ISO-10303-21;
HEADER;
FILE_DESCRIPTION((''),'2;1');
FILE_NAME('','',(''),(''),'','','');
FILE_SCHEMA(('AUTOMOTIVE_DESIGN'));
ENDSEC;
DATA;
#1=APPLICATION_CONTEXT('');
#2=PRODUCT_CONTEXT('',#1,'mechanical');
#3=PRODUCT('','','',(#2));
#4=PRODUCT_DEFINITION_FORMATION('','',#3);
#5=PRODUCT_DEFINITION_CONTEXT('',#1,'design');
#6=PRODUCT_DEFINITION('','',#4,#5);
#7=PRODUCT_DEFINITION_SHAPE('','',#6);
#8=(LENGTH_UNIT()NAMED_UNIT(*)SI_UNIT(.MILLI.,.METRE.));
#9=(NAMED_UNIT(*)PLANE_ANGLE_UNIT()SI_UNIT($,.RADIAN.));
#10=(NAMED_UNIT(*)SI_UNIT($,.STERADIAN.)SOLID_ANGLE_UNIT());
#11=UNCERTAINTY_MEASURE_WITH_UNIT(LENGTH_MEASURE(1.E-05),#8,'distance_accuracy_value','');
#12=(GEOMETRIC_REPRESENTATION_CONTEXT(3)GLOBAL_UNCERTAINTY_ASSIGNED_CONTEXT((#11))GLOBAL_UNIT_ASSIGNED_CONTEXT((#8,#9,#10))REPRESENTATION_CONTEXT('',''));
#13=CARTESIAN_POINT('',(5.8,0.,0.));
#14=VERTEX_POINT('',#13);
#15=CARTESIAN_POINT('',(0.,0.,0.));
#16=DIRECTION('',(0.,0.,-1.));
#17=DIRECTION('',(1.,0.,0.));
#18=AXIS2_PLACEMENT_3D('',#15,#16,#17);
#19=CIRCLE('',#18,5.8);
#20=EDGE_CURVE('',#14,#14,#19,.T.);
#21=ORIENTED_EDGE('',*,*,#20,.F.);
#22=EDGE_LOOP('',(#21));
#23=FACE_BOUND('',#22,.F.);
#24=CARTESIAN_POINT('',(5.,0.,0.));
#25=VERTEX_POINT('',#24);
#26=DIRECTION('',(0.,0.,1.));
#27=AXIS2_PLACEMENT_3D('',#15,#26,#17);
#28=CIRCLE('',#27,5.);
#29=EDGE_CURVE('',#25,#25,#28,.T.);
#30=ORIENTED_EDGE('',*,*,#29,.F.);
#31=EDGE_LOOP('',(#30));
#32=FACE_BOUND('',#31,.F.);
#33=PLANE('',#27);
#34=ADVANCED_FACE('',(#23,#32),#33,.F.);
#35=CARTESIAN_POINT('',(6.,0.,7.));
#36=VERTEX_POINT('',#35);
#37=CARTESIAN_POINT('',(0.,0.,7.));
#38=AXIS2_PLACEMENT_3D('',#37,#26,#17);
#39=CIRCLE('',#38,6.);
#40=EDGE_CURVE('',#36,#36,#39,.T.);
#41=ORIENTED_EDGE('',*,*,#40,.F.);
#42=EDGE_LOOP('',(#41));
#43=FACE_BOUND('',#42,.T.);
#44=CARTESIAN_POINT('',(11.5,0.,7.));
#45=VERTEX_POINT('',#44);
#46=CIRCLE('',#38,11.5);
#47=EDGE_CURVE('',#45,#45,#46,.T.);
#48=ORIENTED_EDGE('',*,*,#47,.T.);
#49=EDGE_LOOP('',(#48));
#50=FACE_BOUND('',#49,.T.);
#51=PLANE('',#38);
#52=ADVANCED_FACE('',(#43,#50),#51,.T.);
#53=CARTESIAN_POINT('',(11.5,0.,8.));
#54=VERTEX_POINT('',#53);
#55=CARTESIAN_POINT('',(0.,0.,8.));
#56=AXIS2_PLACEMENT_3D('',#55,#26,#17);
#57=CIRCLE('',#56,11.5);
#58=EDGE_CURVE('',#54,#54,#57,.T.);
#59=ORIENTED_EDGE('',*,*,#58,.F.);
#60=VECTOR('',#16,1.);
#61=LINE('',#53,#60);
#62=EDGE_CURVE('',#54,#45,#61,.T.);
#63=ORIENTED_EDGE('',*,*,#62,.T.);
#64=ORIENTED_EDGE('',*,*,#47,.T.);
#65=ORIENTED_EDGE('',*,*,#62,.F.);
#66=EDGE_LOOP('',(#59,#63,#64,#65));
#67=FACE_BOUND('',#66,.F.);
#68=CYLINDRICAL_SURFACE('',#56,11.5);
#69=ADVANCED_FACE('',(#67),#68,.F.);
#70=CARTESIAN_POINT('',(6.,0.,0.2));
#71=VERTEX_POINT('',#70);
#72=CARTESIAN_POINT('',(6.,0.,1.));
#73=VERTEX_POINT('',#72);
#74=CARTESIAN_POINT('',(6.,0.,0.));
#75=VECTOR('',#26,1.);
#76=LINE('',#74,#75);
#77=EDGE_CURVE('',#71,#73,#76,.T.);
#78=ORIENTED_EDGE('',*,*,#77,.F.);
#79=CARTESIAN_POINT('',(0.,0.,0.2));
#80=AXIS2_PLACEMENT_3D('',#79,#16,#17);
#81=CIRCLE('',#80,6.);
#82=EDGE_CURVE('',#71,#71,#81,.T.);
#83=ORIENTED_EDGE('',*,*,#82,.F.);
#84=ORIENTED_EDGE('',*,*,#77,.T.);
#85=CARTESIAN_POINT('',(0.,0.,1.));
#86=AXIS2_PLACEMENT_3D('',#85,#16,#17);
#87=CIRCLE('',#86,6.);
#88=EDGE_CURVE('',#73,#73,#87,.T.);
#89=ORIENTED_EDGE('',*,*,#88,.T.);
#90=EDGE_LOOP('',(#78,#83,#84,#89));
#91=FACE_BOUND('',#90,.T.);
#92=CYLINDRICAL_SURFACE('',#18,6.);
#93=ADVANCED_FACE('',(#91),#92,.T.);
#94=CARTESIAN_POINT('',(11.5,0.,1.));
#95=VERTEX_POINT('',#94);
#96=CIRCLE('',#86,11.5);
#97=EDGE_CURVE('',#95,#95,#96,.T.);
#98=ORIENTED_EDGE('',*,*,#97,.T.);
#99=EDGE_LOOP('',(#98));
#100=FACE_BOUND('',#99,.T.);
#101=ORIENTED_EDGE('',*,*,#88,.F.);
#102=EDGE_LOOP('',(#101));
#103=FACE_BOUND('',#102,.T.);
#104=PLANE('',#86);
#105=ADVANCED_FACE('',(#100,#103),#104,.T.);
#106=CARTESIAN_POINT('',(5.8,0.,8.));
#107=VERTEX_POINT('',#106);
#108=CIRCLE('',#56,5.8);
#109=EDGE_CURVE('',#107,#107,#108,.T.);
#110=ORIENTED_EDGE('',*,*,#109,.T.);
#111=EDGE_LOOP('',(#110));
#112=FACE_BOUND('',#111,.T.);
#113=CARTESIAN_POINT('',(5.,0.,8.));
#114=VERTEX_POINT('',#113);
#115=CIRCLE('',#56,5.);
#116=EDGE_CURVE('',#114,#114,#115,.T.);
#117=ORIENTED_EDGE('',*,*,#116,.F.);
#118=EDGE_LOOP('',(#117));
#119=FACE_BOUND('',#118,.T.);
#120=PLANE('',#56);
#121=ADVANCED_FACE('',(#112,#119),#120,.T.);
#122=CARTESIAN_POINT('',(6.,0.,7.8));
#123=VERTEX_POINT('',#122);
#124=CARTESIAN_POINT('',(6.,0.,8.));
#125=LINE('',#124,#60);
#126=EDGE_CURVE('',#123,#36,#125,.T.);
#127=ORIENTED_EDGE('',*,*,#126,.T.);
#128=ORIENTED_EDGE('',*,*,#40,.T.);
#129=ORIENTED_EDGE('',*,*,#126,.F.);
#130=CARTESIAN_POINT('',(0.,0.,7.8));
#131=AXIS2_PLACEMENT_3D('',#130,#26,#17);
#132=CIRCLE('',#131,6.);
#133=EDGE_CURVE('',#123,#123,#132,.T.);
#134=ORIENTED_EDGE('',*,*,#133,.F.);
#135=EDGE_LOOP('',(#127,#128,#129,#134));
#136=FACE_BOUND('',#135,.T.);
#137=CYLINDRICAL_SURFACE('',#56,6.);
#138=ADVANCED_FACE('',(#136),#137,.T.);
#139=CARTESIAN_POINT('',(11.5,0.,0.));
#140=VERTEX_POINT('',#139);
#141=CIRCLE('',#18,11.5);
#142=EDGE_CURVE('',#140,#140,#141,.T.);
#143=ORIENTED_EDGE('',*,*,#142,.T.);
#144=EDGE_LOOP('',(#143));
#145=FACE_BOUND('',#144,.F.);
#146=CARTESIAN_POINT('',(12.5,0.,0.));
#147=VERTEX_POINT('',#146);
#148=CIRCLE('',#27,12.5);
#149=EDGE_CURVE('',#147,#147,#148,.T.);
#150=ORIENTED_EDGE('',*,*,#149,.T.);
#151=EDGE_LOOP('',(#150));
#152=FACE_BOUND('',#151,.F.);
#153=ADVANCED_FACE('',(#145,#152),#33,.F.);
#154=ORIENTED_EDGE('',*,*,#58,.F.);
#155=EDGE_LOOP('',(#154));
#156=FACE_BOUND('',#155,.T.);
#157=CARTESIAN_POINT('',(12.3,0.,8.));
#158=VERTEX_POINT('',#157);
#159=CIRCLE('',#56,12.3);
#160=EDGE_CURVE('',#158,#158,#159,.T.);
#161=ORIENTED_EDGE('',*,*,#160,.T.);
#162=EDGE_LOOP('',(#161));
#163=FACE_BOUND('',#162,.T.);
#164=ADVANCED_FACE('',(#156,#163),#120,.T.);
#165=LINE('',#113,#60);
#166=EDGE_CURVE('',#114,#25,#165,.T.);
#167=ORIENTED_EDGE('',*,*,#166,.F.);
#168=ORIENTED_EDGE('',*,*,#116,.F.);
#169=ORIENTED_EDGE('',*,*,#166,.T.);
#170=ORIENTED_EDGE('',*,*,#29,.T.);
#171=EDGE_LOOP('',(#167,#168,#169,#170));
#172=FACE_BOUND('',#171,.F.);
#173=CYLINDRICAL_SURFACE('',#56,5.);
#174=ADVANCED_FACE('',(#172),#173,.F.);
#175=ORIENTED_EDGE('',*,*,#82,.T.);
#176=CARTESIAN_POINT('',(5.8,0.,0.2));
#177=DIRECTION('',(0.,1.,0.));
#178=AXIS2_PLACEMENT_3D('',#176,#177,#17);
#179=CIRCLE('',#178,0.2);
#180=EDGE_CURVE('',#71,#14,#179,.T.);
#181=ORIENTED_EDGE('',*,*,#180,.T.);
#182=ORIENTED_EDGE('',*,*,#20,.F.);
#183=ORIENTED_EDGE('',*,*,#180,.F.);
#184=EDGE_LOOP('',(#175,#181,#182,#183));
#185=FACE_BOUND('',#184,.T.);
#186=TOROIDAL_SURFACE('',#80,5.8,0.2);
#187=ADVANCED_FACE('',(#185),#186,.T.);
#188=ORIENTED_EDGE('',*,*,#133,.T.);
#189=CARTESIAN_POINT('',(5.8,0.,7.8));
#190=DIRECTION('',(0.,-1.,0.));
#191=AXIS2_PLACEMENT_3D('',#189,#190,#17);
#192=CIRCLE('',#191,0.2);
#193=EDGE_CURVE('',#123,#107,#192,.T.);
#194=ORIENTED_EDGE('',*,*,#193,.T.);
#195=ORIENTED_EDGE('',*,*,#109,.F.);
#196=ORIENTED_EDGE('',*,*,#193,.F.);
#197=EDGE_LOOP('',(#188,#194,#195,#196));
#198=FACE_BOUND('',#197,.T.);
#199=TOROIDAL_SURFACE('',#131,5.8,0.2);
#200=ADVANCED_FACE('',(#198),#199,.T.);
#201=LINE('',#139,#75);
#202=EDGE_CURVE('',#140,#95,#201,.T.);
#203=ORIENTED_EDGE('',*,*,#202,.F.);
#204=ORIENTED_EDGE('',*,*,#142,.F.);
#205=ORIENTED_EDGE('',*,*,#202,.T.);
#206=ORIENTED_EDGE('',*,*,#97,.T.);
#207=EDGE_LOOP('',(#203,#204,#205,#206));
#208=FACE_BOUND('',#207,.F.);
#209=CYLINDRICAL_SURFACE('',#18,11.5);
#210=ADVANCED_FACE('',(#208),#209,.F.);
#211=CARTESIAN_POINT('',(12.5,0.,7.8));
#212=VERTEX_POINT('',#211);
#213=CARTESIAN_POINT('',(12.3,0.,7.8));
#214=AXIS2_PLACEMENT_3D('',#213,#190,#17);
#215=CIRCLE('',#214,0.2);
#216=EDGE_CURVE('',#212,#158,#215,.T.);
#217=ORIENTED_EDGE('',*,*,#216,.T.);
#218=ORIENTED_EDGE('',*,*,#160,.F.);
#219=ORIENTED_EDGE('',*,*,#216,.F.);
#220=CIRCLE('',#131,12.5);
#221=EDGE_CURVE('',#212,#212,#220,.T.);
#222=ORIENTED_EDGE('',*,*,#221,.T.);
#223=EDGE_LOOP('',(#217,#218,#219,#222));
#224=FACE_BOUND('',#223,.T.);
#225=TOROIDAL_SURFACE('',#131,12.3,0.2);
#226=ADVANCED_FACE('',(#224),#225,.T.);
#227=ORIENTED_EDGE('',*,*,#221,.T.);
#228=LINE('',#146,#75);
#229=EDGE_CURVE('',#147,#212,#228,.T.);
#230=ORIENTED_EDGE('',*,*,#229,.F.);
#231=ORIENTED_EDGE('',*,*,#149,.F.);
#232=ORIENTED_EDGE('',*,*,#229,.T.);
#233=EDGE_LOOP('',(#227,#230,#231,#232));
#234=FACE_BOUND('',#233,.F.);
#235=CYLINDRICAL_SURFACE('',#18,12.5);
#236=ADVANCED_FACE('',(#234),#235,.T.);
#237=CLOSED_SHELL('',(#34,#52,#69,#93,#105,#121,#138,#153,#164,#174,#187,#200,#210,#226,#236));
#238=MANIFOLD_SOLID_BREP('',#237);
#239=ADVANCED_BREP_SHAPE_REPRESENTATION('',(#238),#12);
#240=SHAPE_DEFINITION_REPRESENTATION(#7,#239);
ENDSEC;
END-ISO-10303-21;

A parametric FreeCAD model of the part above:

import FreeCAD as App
import Part
import Sketcher
from FreeCAD import Vector
Q = App.Units.Quantity


def edges_at(feature, points):
    """Names of the edges that pass closest to the given points."""
    edges = feature.Shape.Edges
    near = lambda p: min(range(len(edges)), key=lambda i: edges[i].distToShape(Part.Vertex(*p))[0])
    return sorted({f"Edge{near(p) + 1}" for p in points})

doc = App.newDocument("Part")
body = doc.addObject("PartDesign::Body", "Body")

# Sketch on XY plane
sketch1 = body.newObject("Sketcher::SketchObject", "Sketch")
sketch1.AttachmentSupport = (doc.getObject("XY_Plane"), [""])
sketch1.MapMode = "FlatFace"
sketch1.addGeometry(Part.Circle(Vector(0, 0, 0), Vector(0, 0, 1), 12), False)
sketch1.addConstraint([
    Sketcher.Constraint("Coincident", 0, 3, -1, 1),
    Sketcher.Constraint("Diameter", 0, Q("25 mm")),
])
pad1 = body.newObject("PartDesign::Pad", "Pad")
pad1.Profile = sketch1
pad1.Length = 8

# Sketch on XY plane
sketch2 = body.newObject("Sketcher::SketchObject", "Sketch001")
sketch2.AttachmentSupport = (doc.getObject("XY_Plane"), [""])
sketch2.MapMode = "FlatFace"
sketch2.AttachmentOffset = App.Placement(Vector(0, 0, 8), App.Rotation())
sketch2.addGeometry(Part.Circle(Vector(0, 0, 0), Vector(0, 0, 1), 5), False)
sketch2.addConstraint([
    Sketcher.Constraint("Coincident", 0, 3, -1, 1),
    Sketcher.Constraint("Diameter", 0, Q("10 mm")),
])
pocket1 = body.newObject("PartDesign::Pocket", "Pocket")
pocket1.Profile = sketch2
pocket1.Type = "ThroughAll"

# Sketch on XY plane
sketch3 = body.newObject("Sketcher::SketchObject", "Sketch002")
sketch3.AttachmentSupport = (doc.getObject("XY_Plane"), [""])
sketch3.MapMode = "FlatFace"
sketch3.AttachmentOffset = App.Placement(Vector(0, 0, 8), App.Rotation())
sketch3.addGeometry([
    Part.Circle(Vector(0, 0, 0), Vector(0, 0, 1), 12),
    Part.Circle(Vector(0, 0, 0), Vector(0, 0, 1), 6),
], False)
sketch3.addConstraint([
    Sketcher.Constraint("Coincident", 0, 3, -1, 1),
    Sketcher.Constraint("Coincident", 1, 3, -1, 1),
    Sketcher.Constraint("Diameter", 0, Q("23 mm")),
    Sketcher.Constraint("Diameter", 1, Q("12 mm")),
])
pocket2 = body.newObject("PartDesign::Pocket", "Pocket001")
pocket2.Profile = sketch3
pocket2.Length = 1

# Sketch on XY plane
sketch4 = body.newObject("Sketcher::SketchObject", "Sketch003")
sketch4.AttachmentSupport = (doc.getObject("XY_Plane"), [""])
sketch4.MapMode = "FlatFace"
sketch4.addGeometry([
    Part.Circle(Vector(0, 0, 0), Vector(0, 0, 1), 12),
    Part.Circle(Vector(0, 0, 0), Vector(0, 0, 1), 6),
], False)
sketch4.addConstraint([
    Sketcher.Constraint("Coincident", 0, 3, -1, 1),
    Sketcher.Constraint("Coincident", 1, 3, -1, 1),
    Sketcher.Constraint("Diameter", 0, Q("23 mm")),
    Sketcher.Constraint("Diameter", 1, Q("12 mm")),
])
pocket3 = body.newObject("PartDesign::Pocket", "Pocket002")
pocket3.Profile = sketch4
pocket3.Length = 1
pocket3.Reversed = True
doc.recompute()

fillet = body.newObject("PartDesign::Fillet", "Fillet")
fillet.Base = (pocket3, edges_at(pocket3, [(-12.5, 0, 8), (-6, 0, 8), (-6, 0, 0)]))
fillet.Radius = 0.2

doc.recompute()
